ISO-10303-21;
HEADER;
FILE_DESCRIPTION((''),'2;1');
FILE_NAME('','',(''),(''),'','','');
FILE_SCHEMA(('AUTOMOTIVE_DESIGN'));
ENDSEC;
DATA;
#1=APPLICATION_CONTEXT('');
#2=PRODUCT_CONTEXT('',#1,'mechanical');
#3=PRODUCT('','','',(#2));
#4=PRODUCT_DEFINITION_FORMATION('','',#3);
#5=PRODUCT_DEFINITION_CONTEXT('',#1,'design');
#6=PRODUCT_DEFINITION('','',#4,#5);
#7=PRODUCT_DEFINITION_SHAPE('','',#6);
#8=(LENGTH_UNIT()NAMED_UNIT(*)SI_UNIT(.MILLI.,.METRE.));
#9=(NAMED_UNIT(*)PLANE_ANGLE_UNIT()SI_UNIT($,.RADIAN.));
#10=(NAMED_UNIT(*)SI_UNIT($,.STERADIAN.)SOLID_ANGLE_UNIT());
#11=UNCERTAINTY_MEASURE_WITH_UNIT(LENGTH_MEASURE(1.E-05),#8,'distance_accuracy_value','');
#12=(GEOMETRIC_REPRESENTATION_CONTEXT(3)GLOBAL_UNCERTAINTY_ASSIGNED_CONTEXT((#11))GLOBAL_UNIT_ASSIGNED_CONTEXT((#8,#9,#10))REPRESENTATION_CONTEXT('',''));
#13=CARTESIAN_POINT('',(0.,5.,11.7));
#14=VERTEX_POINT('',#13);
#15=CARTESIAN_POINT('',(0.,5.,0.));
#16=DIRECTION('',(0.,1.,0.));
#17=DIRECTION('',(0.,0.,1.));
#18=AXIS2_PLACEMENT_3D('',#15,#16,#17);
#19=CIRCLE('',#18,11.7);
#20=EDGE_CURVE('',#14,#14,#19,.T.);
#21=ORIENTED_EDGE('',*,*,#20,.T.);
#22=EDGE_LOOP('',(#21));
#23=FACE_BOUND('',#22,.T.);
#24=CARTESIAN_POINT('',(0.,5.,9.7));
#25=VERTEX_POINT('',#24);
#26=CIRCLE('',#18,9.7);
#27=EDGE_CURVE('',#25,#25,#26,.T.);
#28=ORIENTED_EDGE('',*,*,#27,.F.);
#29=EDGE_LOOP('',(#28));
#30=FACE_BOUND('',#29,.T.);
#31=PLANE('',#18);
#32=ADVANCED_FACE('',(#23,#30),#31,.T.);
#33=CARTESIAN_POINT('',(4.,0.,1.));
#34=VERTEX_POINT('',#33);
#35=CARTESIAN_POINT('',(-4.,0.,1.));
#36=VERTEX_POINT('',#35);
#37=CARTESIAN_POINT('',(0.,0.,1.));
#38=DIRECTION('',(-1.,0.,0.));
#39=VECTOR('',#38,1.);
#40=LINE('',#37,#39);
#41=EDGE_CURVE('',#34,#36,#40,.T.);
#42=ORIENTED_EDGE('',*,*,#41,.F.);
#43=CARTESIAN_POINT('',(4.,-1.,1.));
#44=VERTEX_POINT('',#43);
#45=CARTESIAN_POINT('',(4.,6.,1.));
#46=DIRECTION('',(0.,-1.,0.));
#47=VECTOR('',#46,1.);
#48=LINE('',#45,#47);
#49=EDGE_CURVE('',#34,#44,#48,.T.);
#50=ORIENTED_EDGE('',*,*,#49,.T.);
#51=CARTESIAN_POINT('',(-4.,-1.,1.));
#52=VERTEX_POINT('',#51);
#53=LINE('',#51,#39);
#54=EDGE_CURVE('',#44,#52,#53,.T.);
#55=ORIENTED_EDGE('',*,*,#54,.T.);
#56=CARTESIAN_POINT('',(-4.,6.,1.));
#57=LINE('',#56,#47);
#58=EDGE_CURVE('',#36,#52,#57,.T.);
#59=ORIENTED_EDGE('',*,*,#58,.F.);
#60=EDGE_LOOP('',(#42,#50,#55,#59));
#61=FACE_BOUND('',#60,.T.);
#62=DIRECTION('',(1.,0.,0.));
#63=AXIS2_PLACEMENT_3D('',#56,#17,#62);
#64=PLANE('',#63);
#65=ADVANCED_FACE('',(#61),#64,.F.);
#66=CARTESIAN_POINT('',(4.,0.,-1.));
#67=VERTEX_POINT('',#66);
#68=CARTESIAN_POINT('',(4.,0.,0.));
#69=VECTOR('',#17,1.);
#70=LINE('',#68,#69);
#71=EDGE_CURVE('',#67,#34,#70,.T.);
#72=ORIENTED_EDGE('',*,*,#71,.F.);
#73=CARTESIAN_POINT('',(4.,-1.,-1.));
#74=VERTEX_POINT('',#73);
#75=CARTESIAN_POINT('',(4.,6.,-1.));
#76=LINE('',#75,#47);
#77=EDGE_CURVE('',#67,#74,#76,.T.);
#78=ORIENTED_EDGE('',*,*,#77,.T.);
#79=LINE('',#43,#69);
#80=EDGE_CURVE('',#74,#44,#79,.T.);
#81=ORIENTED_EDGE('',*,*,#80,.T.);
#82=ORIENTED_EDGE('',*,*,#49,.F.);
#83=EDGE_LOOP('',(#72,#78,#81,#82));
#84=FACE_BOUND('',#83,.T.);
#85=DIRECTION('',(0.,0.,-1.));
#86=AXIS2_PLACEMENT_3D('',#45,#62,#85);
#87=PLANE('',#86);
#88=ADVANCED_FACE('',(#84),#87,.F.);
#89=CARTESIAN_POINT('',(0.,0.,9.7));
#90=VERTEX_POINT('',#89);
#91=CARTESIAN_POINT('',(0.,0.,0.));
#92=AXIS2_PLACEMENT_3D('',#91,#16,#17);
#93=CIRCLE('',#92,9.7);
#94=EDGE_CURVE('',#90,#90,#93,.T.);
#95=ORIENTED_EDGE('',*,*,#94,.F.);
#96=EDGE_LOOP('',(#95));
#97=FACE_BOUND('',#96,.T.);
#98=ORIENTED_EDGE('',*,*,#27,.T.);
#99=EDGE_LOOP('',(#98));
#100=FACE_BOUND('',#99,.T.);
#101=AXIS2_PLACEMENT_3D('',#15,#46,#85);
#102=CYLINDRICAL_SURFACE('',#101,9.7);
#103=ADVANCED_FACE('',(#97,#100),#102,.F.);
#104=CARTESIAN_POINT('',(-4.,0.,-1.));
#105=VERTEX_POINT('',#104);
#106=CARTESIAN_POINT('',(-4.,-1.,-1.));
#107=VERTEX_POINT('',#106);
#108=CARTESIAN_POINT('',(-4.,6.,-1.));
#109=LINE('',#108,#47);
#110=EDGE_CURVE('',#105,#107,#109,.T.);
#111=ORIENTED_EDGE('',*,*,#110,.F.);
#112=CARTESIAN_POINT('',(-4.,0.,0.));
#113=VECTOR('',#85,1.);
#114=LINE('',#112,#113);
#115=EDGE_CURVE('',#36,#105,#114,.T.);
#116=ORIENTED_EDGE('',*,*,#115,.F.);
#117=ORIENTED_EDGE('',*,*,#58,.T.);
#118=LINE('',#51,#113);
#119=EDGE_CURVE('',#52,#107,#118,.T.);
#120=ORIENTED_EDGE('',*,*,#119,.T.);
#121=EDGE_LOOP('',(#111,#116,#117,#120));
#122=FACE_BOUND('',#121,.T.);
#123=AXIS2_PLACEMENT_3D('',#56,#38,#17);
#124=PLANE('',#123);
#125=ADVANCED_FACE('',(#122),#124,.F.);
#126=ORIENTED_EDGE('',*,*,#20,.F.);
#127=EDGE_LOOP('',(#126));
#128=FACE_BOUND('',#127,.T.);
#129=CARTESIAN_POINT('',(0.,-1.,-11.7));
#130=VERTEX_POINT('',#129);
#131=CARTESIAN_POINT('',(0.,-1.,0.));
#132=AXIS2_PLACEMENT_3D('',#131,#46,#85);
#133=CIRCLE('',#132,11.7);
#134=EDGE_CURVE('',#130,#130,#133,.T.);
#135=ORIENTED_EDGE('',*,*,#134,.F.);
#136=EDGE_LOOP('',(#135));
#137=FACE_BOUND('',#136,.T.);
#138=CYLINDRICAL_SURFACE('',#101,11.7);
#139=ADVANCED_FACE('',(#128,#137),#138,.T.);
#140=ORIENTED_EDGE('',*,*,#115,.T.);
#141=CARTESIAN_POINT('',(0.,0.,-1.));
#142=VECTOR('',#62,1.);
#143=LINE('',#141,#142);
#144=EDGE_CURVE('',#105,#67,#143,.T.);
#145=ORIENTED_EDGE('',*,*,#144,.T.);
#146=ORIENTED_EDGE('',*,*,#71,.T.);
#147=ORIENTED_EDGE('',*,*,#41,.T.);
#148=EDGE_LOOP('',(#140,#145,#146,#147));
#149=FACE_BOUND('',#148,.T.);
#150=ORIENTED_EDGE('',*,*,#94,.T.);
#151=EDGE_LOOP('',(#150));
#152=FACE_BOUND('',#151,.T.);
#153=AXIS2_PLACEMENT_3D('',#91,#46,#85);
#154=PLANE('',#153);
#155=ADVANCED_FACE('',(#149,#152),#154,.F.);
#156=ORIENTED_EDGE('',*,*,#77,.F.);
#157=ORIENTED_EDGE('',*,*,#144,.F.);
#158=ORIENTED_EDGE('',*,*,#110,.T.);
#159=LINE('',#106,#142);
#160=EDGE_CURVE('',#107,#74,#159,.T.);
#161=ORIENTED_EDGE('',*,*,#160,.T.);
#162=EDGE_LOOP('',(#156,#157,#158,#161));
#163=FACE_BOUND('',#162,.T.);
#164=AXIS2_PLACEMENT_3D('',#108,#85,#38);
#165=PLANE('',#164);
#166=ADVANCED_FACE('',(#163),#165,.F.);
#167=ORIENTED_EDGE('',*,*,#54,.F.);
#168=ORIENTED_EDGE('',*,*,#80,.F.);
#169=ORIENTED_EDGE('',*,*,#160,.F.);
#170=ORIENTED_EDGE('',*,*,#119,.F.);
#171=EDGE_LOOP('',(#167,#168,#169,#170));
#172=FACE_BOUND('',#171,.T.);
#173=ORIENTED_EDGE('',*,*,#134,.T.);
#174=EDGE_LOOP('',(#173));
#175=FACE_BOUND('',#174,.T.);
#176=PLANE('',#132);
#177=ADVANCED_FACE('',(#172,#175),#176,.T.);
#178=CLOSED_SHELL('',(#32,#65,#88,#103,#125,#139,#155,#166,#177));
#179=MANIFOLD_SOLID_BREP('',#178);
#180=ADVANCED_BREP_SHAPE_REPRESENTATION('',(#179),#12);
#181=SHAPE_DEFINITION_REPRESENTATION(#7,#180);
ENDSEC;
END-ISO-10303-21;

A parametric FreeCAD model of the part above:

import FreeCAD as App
import Part
import Sketcher
Q = App.Units.Quantity

doc = App.newDocument("Part")
body = doc.addObject("PartDesign::Body", "Body")

sketch1 = body.newObject("Sketcher::SketchObject", "Sketch")
sketch1.AttachmentSupport = (doc.getObject("XZ_Plane"), [""])
sketch1.MapMode = "FlatFace"
sketch1.addGeometry([
    Part.Circle(App.Vector(0, 0, 0), App.Vector(0, 0, 1), 11.7),
    Part.Circle(App.Vector(0, 0, 0), App.Vector(0, 0, 1), 9.7),
], False)
sketch1.addConstraint([
    Sketcher.Constraint("Coincident", 0, 3, -1, 1),
    Sketcher.Constraint("Coincident", 1, 3, -1, 1),
    Sketcher.Constraint("Diameter", 0, Q("23.4 mm")),
    Sketcher.Constraint("Diameter", 1, Q("19.4 mm")),
])
pad1 = body.newObject("PartDesign::Pad", "Pad")
pad1.Profile = sketch1
pad1.Length = 5
pad1.Reversed = True

sketch2 = body.newObject("Sketcher::SketchObject", "Sketch001")
sketch2.AttachmentSupport = (doc.getObject("XZ_Plane"), [""])
sketch2.MapMode = "FlatFace"
sketch2.AttachmentOffset = App.Placement(App.Vector(0, 0, 1), App.Rotation())
sketch2.addGeometry(Part.Circle(App.Vector(0, 0, 0), App.Vector(0, 0, 1), 11.7), False)
sketch2.addConstraint([
    Sketcher.Constraint("Coincident", 0, 3, -1, 1),
    Sketcher.Constraint("Diameter", 0, Q("23.4 mm")),
])
pad2 = body.newObject("PartDesign::Pad", "Pad001")
pad2.Profile = sketch2
pad2.Length = 1
pad2.Reversed = True

sketch3 = body.newObject("Sketcher::SketchObject", "Sketch002")
sketch3.AttachmentSupport = (doc.getObject("XZ_Plane"), [""])
sketch3.MapMode = "FlatFace"
sketch3.AttachmentOffset = App.Placement(App.Vector(0, 0, 1), App.Rotation())
sketch3.addGeometry([
    Part.LineSegment(App.Vector(-4, 1, 0), App.Vector(-4, -1, 0)),
    Part.LineSegment(App.Vector(-4, -1, 0), App.Vector(4, -1, 0)),
    Part.LineSegment(App.Vector(4, -1, 0), App.Vector(4, 1, 0)),
    Part.LineSegment(App.Vector(4, 1, 0), App.Vector(-4, 1, 0)),
], False)
sketch3.addConstraint([
    Sketcher.Constraint("Coincident", 0, 2, 1, 1),
    Sketcher.Constraint("Coincident", 1, 2, 2, 1),
    Sketcher.Constraint("Coincident", 2, 2, 3, 1),
    Sketcher.Constraint("Coincident", 3, 2, 0, 1),
    Sketcher.Constraint("Vertical", 0),
    Sketcher.Constraint("Horizontal", 1),
    Sketcher.Constraint("Vertical", 2),
    Sketcher.Constraint("Horizontal", 3),
    Sketcher.Constraint("Symmetric", 0, 2, 2, 2, -1, 1),
    Sketcher.Constraint("DistanceX", 1, 1, 1, 2, Q("8 mm")),
    Sketcher.Constraint("DistanceY", 0, 2, 0, 1, Q("2 mm")),
])
pocket1 = body.newObject("PartDesign::Pocket", "Pocket")
pocket1.Profile = sketch3
pocket1.Length = 7

doc.recompute()
